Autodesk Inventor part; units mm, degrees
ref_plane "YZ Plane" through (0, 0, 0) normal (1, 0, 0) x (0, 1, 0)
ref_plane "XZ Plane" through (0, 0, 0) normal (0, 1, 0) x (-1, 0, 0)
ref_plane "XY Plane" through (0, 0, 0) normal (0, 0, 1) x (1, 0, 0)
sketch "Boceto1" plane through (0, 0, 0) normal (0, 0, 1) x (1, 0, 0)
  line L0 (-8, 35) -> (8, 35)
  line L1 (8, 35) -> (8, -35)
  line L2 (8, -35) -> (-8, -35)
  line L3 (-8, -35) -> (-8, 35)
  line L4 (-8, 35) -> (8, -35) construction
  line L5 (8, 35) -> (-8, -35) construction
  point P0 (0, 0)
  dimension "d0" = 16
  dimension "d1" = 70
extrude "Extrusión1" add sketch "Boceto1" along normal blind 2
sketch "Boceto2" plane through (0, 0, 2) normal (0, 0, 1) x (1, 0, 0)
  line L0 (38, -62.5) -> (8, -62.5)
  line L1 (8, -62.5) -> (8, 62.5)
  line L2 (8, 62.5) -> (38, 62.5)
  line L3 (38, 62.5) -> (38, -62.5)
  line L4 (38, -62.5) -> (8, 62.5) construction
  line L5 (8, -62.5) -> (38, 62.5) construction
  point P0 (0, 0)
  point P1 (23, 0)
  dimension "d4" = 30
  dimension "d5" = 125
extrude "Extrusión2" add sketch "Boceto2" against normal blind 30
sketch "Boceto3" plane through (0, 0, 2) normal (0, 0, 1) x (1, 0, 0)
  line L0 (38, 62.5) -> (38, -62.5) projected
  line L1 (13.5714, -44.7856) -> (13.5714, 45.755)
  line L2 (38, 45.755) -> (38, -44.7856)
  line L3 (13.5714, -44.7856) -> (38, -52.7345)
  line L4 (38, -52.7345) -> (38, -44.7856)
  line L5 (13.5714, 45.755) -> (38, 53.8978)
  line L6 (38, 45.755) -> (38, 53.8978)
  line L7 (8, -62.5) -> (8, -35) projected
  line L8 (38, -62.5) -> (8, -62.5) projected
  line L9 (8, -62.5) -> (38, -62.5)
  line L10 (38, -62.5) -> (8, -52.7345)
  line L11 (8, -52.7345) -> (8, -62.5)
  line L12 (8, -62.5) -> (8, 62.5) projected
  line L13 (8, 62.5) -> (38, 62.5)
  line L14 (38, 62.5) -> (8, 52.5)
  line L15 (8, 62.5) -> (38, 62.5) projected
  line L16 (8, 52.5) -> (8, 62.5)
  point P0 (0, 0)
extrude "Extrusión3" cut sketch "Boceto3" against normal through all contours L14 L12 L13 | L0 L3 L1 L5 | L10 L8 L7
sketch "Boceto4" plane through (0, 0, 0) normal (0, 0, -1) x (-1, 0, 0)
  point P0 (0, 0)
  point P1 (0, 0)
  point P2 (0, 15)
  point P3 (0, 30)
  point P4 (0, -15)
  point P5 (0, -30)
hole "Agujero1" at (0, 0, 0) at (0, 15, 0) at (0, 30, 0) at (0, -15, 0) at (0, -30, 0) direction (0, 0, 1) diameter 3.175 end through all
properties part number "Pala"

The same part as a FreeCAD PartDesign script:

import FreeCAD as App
import Part
import Sketcher

doc = App.newDocument("Part")
params = doc.addObject("Spreadsheet::Sheet", "Params")
for row, (alias, value) in enumerate([
    ("sketch1_width", "16 mm"),
    ("sketch1_height", "70 mm"),
    ("pad1_length", "2 mm"),
    ("sketch2_width", "30 mm"),
    ("sketch2_height", "125 mm"),
    ("pad2_length", "30 mm"),
    ("sketch3_width", "30 mm"),
    ("sketch3_width2", "30 mm"),
    ("sketch3_height", "10 mm"),
    ("sketch3_length", "25.75 mm"),
    ("hole_diameter", "3.175 mm"),
], start=1):
    params.set(f"A{row}", alias)
    params.set(f"B{row}", "=" + value)
    params.setAlias(f"B{row}", alias)

body = doc.addObject("PartDesign::Body", "Body")

# Sketch on XY plane
sketch1 = body.newObject("Sketcher::SketchObject", "Sketch")
sketch1.AttachmentSupport = (doc.getObject("XY_Plane"), [""])
sketch1.MapMode = "FlatFace"
sketch1.addGeometry(Part.LineSegment(App.Vector(8, 35, 0), App.Vector(-8, 35, 0)), False)
sketch1.addGeometry(Part.LineSegment(App.Vector(-8, 35, 0), App.Vector(-8, -35, 0)), False)
sketch1.addGeometry(Part.LineSegment(App.Vector(-8, -35, 0), App.Vector(8, -35, 0)), False)
sketch1.addGeometry(Part.LineSegment(App.Vector(8, -35, 0), App.Vector(8, 35, 0)), False)
sketch1.addConstraint(Sketcher.Constraint("Coincident", 0, 2, 1, 1))
sketch1.addConstraint(Sketcher.Constraint("Coincident", 1, 2, 2, 1))
sketch1.addConstraint(Sketcher.Constraint("Coincident", 2, 2, 3, 1))
sketch1.addConstraint(Sketcher.Constraint("Coincident", 3, 2, 0, 1))
sketch1.addConstraint(Sketcher.Constraint("Horizontal", 0))
sketch1.addConstraint(Sketcher.Constraint("Vertical", 1))
sketch1.addConstraint(Sketcher.Constraint("Horizontal", 2))
sketch1.addConstraint(Sketcher.Constraint("Vertical", 3))
sketch1.addConstraint(Sketcher.Constraint("Symmetric", 0, 2, 2, 2, -1, 1))
sketch1.addConstraint(Sketcher.Constraint("DistanceX", 0, 2, 0, 1, 16.0))
sketch1.addConstraint(Sketcher.Constraint("DistanceY", 1, 2, 1, 1, 70.0))
sketch1.setExpression("Constraints[9]", "Params.sketch1_width")
sketch1.setExpression("Constraints[10]", "Params.sketch1_height")
pad1 = body.newObject("PartDesign::Pad", "Pad")
pad1.Profile = sketch1
pad1.setExpression("Length", "Params.pad1_length")

# Sketch on XY plane
sketch2 = body.newObject("Sketcher::SketchObject", "Sketch001")
sketch2.AttachmentSupport = (doc.getObject("XY_Plane"), [""])
sketch2.MapMode = "FlatFace"
sketch2.AttachmentOffset = App.Placement(App.Vector(0, 0, 2), App.Rotation())
sketch2.addGeometry(Part.LineSegment(App.Vector(8, -62, 0), App.Vector(38, -62, 0)), False)
sketch2.addGeometry(Part.LineSegment(App.Vector(38, -62, 0), App.Vector(38, 62, 0)), False)
sketch2.addGeometry(Part.LineSegment(App.Vector(38, 62, 0), App.Vector(8, 62, 0)), False)
sketch2.addGeometry(Part.LineSegment(App.Vector(8, 62, 0), App.Vector(8, -62, 0)), False)
sketch2.addConstraint(Sketcher.Constraint("Coincident", 0, 2, 1, 1))
sketch2.addConstraint(Sketcher.Constraint("Coincident", 1, 2, 2, 1))
sketch2.addConstraint(Sketcher.Constraint("Coincident", 2, 2, 3, 1))
sketch2.addConstraint(Sketcher.Constraint("Coincident", 3, 2, 0, 1))
sketch2.addConstraint(Sketcher.Constraint("Horizontal", 0))
sketch2.addConstraint(Sketcher.Constraint("Vertical", 1))
sketch2.addConstraint(Sketcher.Constraint("Horizontal", 2))
sketch2.addConstraint(Sketcher.Constraint("Vertical", 3))
sketch2.addConstraint(Sketcher.Constraint("DistanceX", 0, 1, 0, 2, 30.0))
sketch2.addConstraint(Sketcher.Constraint("DistanceY", 1, 1, 1, 2, 125.0))
sketch2.addConstraint(Sketcher.Constraint("DistanceX", -1, 1, 0, 2, 38.0))
sketch2.addConstraint(Sketcher.Constraint("DistanceY", 0, 2, -1, 1, 62.5))
sketch2.setExpression("Constraints[8]", "Params.sketch2_width")
sketch2.setExpression("Constraints[9]", "Params.sketch2_height")
pad2 = body.newObject("PartDesign::Pad", "Pad001")
pad2.Profile = sketch2
pad2.setExpression("Length", "Params.pad2_length")
pad2.Reversed = True

# Sketch on XY plane
sketch3 = body.newObject("Sketcher::SketchObject", "Sketch002")
sketch3.AttachmentSupport = (doc.getObject("XY_Plane"), [""])
sketch3.MapMode = "FlatFace"
sketch3.AttachmentOffset = App.Placement(App.Vector(0, 0, 2), App.Rotation())
sketch3.addGeometry(Part.LineSegment(App.Vector(8, 52.5, 0), App.Vector(38, 62.5, 0)), False)
sketch3.addGeometry(Part.LineSegment(App.Vector(38, 62.5, 0), App.Vector(8, 62.5, 0)), False)
sketch3.addGeometry(Part.LineSegment(App.Vector(8, 62.5, 0), App.Vector(8, 52.5, 0)), False)
sketch3.addGeometry(Part.LineSegment(App.Vector(38, -52.7345, 0), App.Vector(38, 53.8978, 0)), False)
sketch3.addGeometry(Part.LineSegment(App.Vector(38, 53.8978, 0), App.Vector(13.5714, 45.755, 0)), False)
sketch3.addGeometry(Part.LineSegment(App.Vector(13.5714, 45.755, 0), App.Vector(13.5714, -44.7856, 0)), False)
sketch3.addGeometry(Part.LineSegment(App.Vector(13.5714, -44.7856, 0), App.Vector(38, -52.7345, 0)), False)
sketch3.addGeometry(Part.LineSegment(App.Vector(38, -62.5, 0), App.Vector(8, -52.7345, 0)), False)
sketch3.addGeometry(Part.LineSegment(App.Vector(8, -52.7345, 0), App.Vector(8, -62.5, 0)), False)
sketch3.addGeometry(Part.LineSegment(App.Vector(8, -62.5, 0), App.Vector(38, -62.5, 0)), False)
sketch3.addConstraint(Sketcher.Constraint("Coincident", 0, 2, 1, 1))
sketch3.addConstraint(Sketcher.Constraint("Coincident", 1, 2, 2, 1))
sketch3.addConstraint(Sketcher.Constraint("Coincident", 2, 2, 0, 1))
sketch3.addConstraint(Sketcher.Constraint("Coincident", 3, 2, 4, 1))
sketch3.addConstraint(Sketcher.Constraint("Coincident", 4, 2, 5, 1))
sketch3.addConstraint(Sketcher.Constraint("Coincident", 5, 2, 6, 1))
sketch3.addConstraint(Sketcher.Constraint("Coincident", 6, 2, 3, 1))
sketch3.addConstraint(Sketcher.Constraint("Coincident", 7, 2, 8, 1))
sketch3.addConstraint(Sketcher.Constraint("Coincident", 8, 2, 9, 1))
sketch3.addConstraint(Sketcher.Constraint("Coincident", 9, 2, 7, 1))
sketch3.addConstraint(Sketcher.Constraint("Horizontal", 1))
sketch3.addConstraint(Sketcher.Constraint("Vertical", 2))
sketch3.addConstraint(Sketcher.Constraint("Vertical", 3))
sketch3.addConstraint(Sketcher.Constraint("Vertical", 5))
sketch3.addConstraint(Sketcher.Constraint("Vertical", 8))
sketch3.addConstraint(Sketcher.Constraint("Horizontal", 9))
sketch3.addConstraint(Sketcher.Constraint("DistanceX", 1, 2, 1, 1, 30.0))
sketch3.addConstraint(Sketcher.Constraint("DistanceX", 9, 1, 9, 2, 30.0))
sketch3.addConstraint(Sketcher.Constraint("DistanceY", 2, 2, 2, 1, 10.0))
sketch3.addConstraint(Sketcher.Constraint("DistanceX", -1, 1, 0, 2, 38.0))
sketch3.addConstraint(Sketcher.Constraint("DistanceX", -1, 1, 3, 2, 38.0))
sketch3.addConstraint(Sketcher.Constraint("DistanceX", -1, 1, 7, 2, 8.0))
sketch3.addConstraint(Sketcher.Constraint("DistanceY", 8, 2, 2, 2, 115.0))
sketch3.addConstraint(Sketcher.Constraint("DistanceY", -1, 1, 0, 2, 62.5))
sketch3.addConstraint(Sketcher.Constraint("Distance", 4, 25.75))
sketch3.addConstraint(Sketcher.Constraint("DistanceY", 3, 1, 3, 2, 106.6323))
sketch3.addConstraint(Sketcher.Constraint("DistanceY", 5, 2, 5, 1, 90.5406))
sketch3.addConstraint(Sketcher.Constraint("DistanceY", 8, 2, 8, 1, 9.7655))
sketch3.addConstraint(Sketcher.Constraint("DistanceY", -1, 1, 4, 2, 45.755))
sketch3.addConstraint(Sketcher.Constraint("DistanceY", 6, 2, 5, 2, 7.949))
sketch3.setExpression("Constraints[16]", "Params.sketch3_width")
sketch3.setExpression("Constraints[17]", "Params.sketch3_width2")
sketch3.setExpression("Constraints[18]", "Params.sketch3_height")
sketch3.setExpression("Constraints[24]", "Params.sketch3_length")
pocket1 = body.newObject("PartDesign::Pocket", "Pocket")
pocket1.Profile = sketch3
pocket1.Type = "ThroughAll"

# Sketch on XY plane
sketch4 = body.newObject("Sketcher::SketchObject", "Sketch003")
sketch4.AttachmentSupport = (doc.getObject("XY_Plane"), [""])
sketch4.MapMode = "FlatFace"
sketch4.addGeometry(Part.Circle(App.Vector(0, 0, 0), App.Vector(0, 0, 1), 1.6), False)
sketch4.addGeometry(Part.Circle(App.Vector(0, 15, 0), App.Vector(0, 0, 1), 1.6), False)
sketch4.addGeometry(Part.Circle(App.Vector(0, 30, 0), App.Vector(0, 0, 1), 1.6), False)
sketch4.addGeometry(Part.Circle(App.Vector(0, -15, 0), App.Vector(0, 0, 1), 1.6), False)
sketch4.addGeometry(Part.Circle(App.Vector(0, -30, 0), App.Vector(0, 0, 1), 1.6), False)
sketch4.addConstraint(Sketcher.Constraint("Coincident", 0, 3, -1, 1))
sketch4.addConstraint(Sketcher.Constraint("Equal", 0, 1))
sketch4.addConstraint(Sketcher.Constraint("Equal", 1, 2))
sketch4.addConstraint(Sketcher.Constraint("Equal", 2, 3))
sketch4.addConstraint(Sketcher.Constraint("Equal", 3, 4))
sketch4.addConstraint(Sketcher.Constraint("Symmetric", 1, 3, 3, 3, -1, 1))
sketch4.addConstraint(Sketcher.Constraint("Symmetric", 2, 3, 4, 3, -1, 1))
sketch4.addConstraint(Sketcher.Constraint("PointOnObject", 1, 3, -2))
sketch4.addConstraint(Sketcher.Constraint("PointOnObject", 2, 3, -2))
sketch4.addConstraint(Sketcher.Constraint("Diameter", 0, 3.175))
sketch4.addConstraint(Sketcher.Constraint("DistanceY", -1, 1, 1, 3, 15.0))
sketch4.addConstraint(Sketcher.Constraint("DistanceY", -1, 1, 2, 3, 30.0))
doc.recompute()
hole = body.newObject("PartDesign::Hole", "Hole")
hole.Profile = sketch4
hole.ThreadType = "None"
hole.setExpression("Diameter", "Params.hole_diameter")
hole.DepthType = "ThroughAll"
hole.Reversed = True

doc.recompute()
